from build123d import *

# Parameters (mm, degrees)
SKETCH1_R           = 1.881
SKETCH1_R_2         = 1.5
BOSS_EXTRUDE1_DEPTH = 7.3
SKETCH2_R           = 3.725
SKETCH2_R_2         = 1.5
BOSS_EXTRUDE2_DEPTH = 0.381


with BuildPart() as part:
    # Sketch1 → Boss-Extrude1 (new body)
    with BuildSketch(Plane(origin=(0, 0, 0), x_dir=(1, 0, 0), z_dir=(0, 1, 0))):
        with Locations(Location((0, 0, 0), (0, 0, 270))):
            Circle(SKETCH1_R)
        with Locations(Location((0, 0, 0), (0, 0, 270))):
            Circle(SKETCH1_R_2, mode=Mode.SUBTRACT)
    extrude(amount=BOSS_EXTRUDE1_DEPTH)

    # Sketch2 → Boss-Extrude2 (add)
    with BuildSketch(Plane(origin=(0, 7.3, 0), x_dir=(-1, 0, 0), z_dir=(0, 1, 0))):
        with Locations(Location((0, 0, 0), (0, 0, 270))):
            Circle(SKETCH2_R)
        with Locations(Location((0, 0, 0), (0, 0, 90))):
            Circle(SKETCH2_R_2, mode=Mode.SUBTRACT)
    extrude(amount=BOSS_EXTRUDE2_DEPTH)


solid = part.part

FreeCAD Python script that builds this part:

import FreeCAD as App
import Part
import Sketcher

V = App.Vector
Q = App.Units.Quantity

doc = App.newDocument("Part")
body = doc.addObject("PartDesign::Body", "Body")

sketch1 = body.newObject("Sketcher::SketchObject", "Sketch")
sketch1.AttachmentSupport = (doc.getObject("XZ_Plane"), [""])
sketch1.MapMode = "FlatFace"
sketch1.addGeometry(Part.Circle(V(0, 0, 0), V(0, 0, 1), 1.881), False)
sketch1.addGeometry(Part.Circle(V(0, 0, 0), V(0, 0, 1), 1.5), False)
sketch1.addConstraint(Sketcher.Constraint("Coincident", 0, 3, -1, 1))
sketch1.addConstraint(Sketcher.Constraint("Coincident", 1, 3, -1, 1))
sketch1.addConstraint(Sketcher.Constraint("Diameter", 1, Q("3 mm")))
sketch1.addConstraint(Sketcher.Constraint("Diameter", 0, Q("3.762 mm")))
pad1 = body.newObject("PartDesign::Pad", "Pad")
pad1.Profile = sketch1
pad1.Length = 7.3
pad1.Reversed = True

sketch2 = body.newObject("Sketcher::SketchObject", "Sketch001")
sketch2.AttachmentSupport = (doc.getObject("XZ_Plane"), [""])
sketch2.MapMode = "FlatFace"
sketch2.AttachmentOffset = App.Placement(V(0, 0, -7.3), App.Rotation())
sketch2.addGeometry(Part.Circle(V(0, 0, 0), V(0, 0, 1), 3.725), False)
sketch2.addGeometry(Part.Circle(V(0, 0, 0), V(0, 0, 1), 1.5), False)
sketch2.addConstraint(Sketcher.Constraint("Coincident", 0, 3, -1, 1))
sketch2.addConstraint(Sketcher.Constraint("Coincident", 1, 3, -1, 1))
sketch2.addConstraint(Sketcher.Constraint("Diameter", 1, Q("3 mm")))
sketch2.addConstraint(Sketcher.Constraint("Diameter", 0, Q("7.45 mm")))
pad2 = body.newObject("PartDesign::Pad", "Pad001")
pad2.Profile = sketch2
pad2.Length = 0.381
pad2.Reversed = True

doc.recompute()
